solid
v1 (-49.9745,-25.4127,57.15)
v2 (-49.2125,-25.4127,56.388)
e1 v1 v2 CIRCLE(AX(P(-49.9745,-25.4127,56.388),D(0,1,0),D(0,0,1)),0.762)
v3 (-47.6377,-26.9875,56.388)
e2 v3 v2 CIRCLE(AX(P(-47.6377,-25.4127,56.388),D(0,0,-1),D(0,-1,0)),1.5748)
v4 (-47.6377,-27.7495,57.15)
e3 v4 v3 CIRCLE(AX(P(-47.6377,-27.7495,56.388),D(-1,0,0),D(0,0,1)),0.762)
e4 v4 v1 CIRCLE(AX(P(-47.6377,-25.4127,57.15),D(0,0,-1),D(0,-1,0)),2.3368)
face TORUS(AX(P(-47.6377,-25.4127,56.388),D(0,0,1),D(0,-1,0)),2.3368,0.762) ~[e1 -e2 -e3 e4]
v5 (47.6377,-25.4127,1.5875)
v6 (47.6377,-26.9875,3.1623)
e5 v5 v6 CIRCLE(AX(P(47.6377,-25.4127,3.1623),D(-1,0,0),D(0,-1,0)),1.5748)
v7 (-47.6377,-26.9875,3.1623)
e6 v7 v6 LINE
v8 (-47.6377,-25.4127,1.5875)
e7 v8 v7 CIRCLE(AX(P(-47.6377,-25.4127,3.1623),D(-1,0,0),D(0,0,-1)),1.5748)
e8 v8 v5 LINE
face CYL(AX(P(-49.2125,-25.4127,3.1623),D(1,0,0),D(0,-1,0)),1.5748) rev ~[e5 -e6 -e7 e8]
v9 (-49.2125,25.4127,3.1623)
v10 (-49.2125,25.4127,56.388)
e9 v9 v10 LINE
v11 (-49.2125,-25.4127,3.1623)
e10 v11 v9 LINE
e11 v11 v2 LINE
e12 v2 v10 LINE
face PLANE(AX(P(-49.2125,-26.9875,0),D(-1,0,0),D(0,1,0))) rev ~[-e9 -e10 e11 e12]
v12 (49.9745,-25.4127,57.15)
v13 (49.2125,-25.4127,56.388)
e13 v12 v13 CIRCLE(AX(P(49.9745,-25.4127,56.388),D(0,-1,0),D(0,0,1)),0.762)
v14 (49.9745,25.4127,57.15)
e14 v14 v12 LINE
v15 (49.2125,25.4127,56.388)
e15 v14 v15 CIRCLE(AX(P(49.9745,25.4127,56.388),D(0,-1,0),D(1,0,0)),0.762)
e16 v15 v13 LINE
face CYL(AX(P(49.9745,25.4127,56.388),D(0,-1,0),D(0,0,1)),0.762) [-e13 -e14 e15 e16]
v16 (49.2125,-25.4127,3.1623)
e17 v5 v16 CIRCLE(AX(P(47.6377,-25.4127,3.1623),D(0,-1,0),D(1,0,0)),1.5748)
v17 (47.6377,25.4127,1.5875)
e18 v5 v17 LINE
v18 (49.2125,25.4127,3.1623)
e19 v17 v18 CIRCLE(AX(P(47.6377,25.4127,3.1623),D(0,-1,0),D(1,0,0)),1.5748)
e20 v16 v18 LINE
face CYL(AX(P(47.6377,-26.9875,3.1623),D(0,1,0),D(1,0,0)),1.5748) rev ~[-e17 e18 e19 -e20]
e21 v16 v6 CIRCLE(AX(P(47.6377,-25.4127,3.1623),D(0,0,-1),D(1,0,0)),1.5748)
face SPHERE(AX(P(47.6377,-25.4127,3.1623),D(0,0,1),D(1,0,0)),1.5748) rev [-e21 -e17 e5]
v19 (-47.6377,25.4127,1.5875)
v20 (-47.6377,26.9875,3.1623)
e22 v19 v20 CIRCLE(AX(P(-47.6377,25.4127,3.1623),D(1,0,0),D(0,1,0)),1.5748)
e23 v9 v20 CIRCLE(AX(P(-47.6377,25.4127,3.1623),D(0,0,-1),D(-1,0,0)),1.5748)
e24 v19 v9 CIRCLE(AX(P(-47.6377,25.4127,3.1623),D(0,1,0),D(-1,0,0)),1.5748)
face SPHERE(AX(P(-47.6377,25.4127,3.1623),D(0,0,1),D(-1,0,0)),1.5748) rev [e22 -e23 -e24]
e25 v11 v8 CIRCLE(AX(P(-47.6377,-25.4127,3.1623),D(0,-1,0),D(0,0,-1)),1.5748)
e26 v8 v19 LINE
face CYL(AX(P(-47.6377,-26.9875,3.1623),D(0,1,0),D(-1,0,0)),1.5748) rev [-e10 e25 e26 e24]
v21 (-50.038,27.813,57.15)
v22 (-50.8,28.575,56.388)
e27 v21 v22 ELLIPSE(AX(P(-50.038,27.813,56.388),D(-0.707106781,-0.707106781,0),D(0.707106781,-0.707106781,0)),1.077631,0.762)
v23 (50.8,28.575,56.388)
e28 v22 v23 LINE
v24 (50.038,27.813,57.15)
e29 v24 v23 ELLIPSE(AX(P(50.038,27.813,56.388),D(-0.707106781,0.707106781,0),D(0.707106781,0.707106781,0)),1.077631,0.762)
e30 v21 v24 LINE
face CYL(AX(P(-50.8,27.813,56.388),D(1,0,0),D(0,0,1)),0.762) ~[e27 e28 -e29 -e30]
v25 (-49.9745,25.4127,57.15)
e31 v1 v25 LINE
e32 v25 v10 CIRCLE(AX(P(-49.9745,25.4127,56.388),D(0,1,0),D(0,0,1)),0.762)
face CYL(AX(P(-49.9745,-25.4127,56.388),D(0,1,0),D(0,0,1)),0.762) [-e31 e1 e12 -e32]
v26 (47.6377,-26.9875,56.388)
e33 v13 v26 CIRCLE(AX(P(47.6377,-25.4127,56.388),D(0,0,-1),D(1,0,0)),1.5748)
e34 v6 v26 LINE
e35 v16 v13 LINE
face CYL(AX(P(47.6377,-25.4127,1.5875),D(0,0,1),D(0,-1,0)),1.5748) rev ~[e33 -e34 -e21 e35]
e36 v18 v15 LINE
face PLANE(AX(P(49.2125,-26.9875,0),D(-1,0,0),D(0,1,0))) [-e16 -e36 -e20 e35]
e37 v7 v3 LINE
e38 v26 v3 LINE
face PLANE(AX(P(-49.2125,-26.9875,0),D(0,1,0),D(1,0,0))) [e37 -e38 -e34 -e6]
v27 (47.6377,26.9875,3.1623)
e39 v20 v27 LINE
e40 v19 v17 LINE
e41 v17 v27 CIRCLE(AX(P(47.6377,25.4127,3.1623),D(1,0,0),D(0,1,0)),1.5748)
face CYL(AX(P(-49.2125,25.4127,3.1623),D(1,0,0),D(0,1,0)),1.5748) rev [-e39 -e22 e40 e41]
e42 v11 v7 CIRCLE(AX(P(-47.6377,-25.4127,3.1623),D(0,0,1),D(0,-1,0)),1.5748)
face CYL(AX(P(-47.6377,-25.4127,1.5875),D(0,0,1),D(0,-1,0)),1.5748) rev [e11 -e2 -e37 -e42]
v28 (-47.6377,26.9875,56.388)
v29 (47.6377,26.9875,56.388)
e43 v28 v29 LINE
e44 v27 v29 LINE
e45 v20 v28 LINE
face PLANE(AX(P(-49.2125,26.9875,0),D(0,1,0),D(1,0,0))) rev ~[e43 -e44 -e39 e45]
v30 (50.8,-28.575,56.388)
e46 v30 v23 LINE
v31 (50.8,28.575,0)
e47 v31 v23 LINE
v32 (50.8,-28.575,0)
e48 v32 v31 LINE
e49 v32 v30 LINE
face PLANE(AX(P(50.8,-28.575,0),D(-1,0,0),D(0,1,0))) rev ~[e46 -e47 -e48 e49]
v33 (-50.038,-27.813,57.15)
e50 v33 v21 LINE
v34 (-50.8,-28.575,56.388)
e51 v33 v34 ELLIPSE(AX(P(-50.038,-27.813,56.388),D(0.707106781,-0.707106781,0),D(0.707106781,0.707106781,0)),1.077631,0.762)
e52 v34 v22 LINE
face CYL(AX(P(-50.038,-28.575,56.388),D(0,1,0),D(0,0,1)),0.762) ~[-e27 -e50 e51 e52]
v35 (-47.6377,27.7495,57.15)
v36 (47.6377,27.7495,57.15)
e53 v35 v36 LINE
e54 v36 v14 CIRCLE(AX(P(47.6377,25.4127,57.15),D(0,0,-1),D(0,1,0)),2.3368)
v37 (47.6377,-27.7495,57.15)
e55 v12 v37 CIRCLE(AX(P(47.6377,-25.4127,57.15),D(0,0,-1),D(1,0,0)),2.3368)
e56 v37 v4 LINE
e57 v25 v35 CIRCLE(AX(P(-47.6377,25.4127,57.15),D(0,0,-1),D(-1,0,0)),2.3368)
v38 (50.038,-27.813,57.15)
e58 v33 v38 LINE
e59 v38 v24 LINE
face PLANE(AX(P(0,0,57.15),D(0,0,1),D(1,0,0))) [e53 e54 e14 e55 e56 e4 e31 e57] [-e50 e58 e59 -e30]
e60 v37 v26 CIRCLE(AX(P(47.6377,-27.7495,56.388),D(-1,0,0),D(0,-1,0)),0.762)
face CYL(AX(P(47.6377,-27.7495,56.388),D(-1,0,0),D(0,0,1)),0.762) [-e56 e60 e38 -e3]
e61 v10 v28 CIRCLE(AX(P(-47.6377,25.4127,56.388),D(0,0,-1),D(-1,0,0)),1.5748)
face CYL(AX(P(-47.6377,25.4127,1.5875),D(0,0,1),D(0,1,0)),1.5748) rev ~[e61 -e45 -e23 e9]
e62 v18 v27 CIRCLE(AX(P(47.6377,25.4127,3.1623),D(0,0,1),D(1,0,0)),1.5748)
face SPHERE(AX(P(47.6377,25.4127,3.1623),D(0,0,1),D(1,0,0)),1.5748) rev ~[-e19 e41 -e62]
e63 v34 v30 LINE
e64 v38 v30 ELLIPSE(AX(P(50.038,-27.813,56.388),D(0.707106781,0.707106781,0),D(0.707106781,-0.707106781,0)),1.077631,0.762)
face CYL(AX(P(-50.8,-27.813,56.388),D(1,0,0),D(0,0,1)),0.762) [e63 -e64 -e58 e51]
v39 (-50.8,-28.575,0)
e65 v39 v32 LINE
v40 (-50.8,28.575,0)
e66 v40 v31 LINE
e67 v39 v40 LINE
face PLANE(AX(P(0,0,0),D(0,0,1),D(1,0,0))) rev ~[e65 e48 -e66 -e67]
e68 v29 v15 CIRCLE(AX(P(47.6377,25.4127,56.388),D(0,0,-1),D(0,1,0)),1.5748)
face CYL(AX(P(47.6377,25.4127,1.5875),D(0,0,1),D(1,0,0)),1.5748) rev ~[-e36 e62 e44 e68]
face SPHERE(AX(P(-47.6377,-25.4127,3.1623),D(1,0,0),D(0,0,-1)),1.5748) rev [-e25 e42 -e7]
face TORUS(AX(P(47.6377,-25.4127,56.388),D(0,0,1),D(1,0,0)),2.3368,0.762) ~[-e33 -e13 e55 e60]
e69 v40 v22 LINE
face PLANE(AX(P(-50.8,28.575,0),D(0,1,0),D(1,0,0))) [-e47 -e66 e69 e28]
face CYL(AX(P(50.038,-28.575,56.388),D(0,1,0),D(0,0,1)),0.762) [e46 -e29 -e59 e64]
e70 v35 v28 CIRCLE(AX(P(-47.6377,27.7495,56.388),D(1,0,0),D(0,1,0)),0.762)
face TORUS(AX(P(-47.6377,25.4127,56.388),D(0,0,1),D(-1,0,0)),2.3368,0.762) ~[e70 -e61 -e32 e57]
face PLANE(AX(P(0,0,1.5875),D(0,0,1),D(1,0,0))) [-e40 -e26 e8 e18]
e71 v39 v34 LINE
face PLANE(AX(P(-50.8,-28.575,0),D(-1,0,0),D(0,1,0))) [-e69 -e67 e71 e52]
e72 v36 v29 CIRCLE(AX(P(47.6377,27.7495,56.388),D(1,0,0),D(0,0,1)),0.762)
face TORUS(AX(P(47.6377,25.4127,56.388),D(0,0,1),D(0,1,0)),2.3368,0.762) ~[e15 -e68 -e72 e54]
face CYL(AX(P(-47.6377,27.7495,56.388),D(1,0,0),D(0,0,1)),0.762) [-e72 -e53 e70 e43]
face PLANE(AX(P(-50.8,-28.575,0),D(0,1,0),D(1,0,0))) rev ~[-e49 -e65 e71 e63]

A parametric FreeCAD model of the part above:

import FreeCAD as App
import Part
import Sketcher
Q = App.Units.Quantity


def edges_at(feature, points):
    """Names of the edges that pass closest to the given points."""
    edges = feature.Shape.Edges
    near = lambda p: min(range(len(edges)), key=lambda i: edges[i].distToShape(Part.Vertex(*p))[0])
    return sorted({f"Edge{near(p) + 1}" for p in points})


def add_polygon(sketch, points):
    """Adds a closed chain of lines whose ends are joined by coincident constraints."""
    first, n = sketch.GeometryCount, len(points)
    for a, b in zip(points, points[1:] + points[:1]):
        sketch.addGeometry(Part.LineSegment(App.Vector(*a, 0), App.Vector(*b, 0)), False)
    for i in range(n):
        sketch.addConstraint(Sketcher.Constraint("Coincident", first + i, 2, first + (i + 1) % n, 1))

doc = App.newDocument("Part")
body = doc.addObject("PartDesign::Body", "Body")

# Sketch on XY plane
sketch1 = doc.addObject("Sketcher::SketchObject", "Sketch")
body.addObject(sketch1)
sketch1.AttachmentSupport = (doc.XY_Plane, [""])
sketch1.MapMode = "FlatFace"
add_polygon(sketch1, [(-50.8, 28.575), (-50.8, -28.575), (50.8, -28.575), (50.8, 28.575)])  # lines 0-3
add_polygon(sketch1, [(49.2125, -26.9875), (-49.2125, -26.9875), (-49.2125, 26.9875), (49.2125, 26.9875)])  # lines 4-7
sketch1.addConstraint([
    Sketcher.Constraint("Vertical", 0),
    Sketcher.Constraint("Horizontal", 1),
    Sketcher.Constraint("Vertical", 2),
    Sketcher.Constraint("Horizontal", 3),
    Sketcher.Constraint("Horizontal", 4),
    Sketcher.Constraint("Vertical", 5),
    Sketcher.Constraint("Horizontal", 6),
    Sketcher.Constraint("Vertical", 7),
    Sketcher.Constraint("Symmetric", 0, 2, 2, 2, -1, 1),
    Sketcher.Constraint("Symmetric", 4, 2, 6, 2, -1, 1),
    Sketcher.Constraint("DistanceX", 1, 1, 1, 2, Q("4 in")),
    Sketcher.Constraint("DistanceY", 0, 2, 0, 1, Q("2.25 in")),
    Sketcher.Constraint("DistanceX", 4, 2, 4, 1, Q("3.875 in")),
    Sketcher.Constraint("DistanceY", 5, 1, 5, 2, Q("2.125 in")),
])
pad1 = doc.addObject("PartDesign::Pad", "Pad")
body.addObject(pad1)
pad1.Profile = sketch1
pad1.Length = Q("2.25 in")

# Sketch on XY plane
sketch2 = doc.addObject("Sketcher::SketchObject", "Sketch001")
body.addObject(sketch2)
sketch2.AttachmentSupport = (doc.XY_Plane, [""])
sketch2.MapMode = "FlatFace"
add_polygon(sketch2, [(-49.2125, 26.9875), (-49.2125, -26.9875), (49.2125, -26.9875), (49.2125, 26.9875)])  # lines 0-3
sketch2.addConstraint([
    Sketcher.Constraint("Vertical", 0),
    Sketcher.Constraint("Horizontal", 1),
    Sketcher.Constraint("Vertical", 2),
    Sketcher.Constraint("Horizontal", 3),
    Sketcher.Constraint("Symmetric", 0, 2, 2, 2, -1, 1),
    Sketcher.Constraint("DistanceX", 1, 1, 1, 2, Q("3.875 in")),
    Sketcher.Constraint("DistanceY", 0, 2, 0, 1, Q("2.125 in")),
])
pad2 = doc.addObject("PartDesign::Pad", "Pad001")
body.addObject(pad2)
pad2.Profile = sketch2
pad2.Length = Q("0.0625 in")
doc.recompute()

fillet = doc.addObject("PartDesign::Fillet", "Fillet")
body.addObject(fillet)
fillet.Base = (pad2, edges_at(pad2, [
    (-49.212, 26.988, 29.369),
    (49.212, 26.988, 29.369),
    (49.212, -26.988, 29.369),
    (49.212, 0, 1.587),
    (0, -26.988, 1.587),
    (-49.212, 0, 1.587),
    (0, 26.988, 1.587),
    (-49.212, -26.988, 29.369),
]))
fillet.Radius = Q("0.062 in")
doc.recompute()

fillet2 = doc.addObject("PartDesign::Fillet", "Fillet001")
body.addObject(fillet2)
fillet2.Base = (fillet, edges_at(fillet, [
    (0, -28.575, 57.15),
    (50.8, 0, 57.15),
    (0, 28.575, 57.15),
    (-50.8, 0, 57.15),
    (-49.212, 0, 57.15),
]))
fillet2.Radius = Q("0.03 in")
body2 = doc.addObject("PartDesign::Body", "Body001")

# Sketch on XZ plane
sketch3 = doc.addObject("Sketcher::SketchObject", "Sketch002")
body2.addObject(sketch3)
sketch3.AttachmentSupport = (doc.getObject("XZ_Plane001"), [""])
sketch3.MapMode = "FlatFace"
sketch3.addGeometry(Part.Circle(App.Vector(-50.13819, -40.545423, 0), App.Vector(0, 0, 1), 20.6375), False)
sketch3.addConstraint([
    Sketcher.Constraint("Diameter", 0, Q("1.625 in")),
    Sketcher.Constraint("DistanceX", 0, 3, -1, 1, Q("50.13819 mm")),
    Sketcher.Constraint("DistanceY", 0, 3, -1, 1, Q("40.545423 mm")),
])
pad3 = doc.addObject("PartDesign::Pad", "Pad002")
body2.addObject(pad3)
pad3.Profile = sketch3
pad3.Length = Q("0.25 in")
body2.Visibility = False

doc.recompute()
